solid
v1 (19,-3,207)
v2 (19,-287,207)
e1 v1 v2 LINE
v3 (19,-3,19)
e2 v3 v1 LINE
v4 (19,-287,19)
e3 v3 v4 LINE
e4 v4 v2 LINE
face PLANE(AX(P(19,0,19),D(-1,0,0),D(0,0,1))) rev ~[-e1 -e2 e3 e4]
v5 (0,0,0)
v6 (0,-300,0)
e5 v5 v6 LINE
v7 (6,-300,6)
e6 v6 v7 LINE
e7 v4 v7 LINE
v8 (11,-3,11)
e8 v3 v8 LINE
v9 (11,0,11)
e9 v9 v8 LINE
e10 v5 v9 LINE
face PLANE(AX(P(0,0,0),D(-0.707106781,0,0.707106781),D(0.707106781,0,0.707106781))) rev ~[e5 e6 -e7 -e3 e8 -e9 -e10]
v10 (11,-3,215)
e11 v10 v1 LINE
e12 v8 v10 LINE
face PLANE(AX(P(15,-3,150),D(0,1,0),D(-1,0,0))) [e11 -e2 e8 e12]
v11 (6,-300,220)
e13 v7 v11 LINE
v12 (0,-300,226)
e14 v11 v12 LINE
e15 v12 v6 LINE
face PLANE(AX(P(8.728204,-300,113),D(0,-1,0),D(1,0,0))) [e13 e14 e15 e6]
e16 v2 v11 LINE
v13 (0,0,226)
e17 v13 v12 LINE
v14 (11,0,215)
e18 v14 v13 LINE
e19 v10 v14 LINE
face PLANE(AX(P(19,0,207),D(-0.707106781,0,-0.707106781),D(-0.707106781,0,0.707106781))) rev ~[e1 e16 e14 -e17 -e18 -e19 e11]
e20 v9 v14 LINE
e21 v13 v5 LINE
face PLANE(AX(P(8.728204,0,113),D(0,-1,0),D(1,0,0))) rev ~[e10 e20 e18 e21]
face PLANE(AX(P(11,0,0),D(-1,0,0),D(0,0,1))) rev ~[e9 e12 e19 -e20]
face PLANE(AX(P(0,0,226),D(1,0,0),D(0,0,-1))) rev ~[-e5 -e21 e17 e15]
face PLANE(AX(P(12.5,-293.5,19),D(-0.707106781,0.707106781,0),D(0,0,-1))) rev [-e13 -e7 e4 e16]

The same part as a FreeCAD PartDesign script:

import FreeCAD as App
import Part
import Sketcher
from FreeCAD import Vector


def edges_at(feature, points):
    """Names of the edges that pass closest to the given points."""
    edges = feature.Shape.Edges
    near = lambda p: min(range(len(edges)), key=lambda i: edges[i].distToShape(Part.Vertex(*p))[0])
    return sorted({f"Edge{near(p) + 1}" for p in points})

doc = App.newDocument("Part")
body = doc.addObject("PartDesign::Body", "Body")

# Sketch on XZ plane
sketch1 = body.newObject("Sketcher::SketchObject", "Sketch")
sketch1.AttachmentSupport = (doc.getObject("XZ_Plane"), [""])
sketch1.MapMode = "FlatFace"
sketch1.addGeometry([
    Part.LineSegment(Vector(0, 226, 0), Vector(0, 0, 0)),
    Part.LineSegment(Vector(0, 0, 0), Vector(19, 19, 0)),
    Part.LineSegment(Vector(19, 19, 0), Vector(19, 207, 0)),
    Part.LineSegment(Vector(19, 207, 0), Vector(0, 226, 0)),
], False)
sketch1.addConstraint([
    Sketcher.Constraint("Coincident", 0, 2, 1, 1),
    Sketcher.Constraint("Coincident", 1, 2, 2, 1),
    Sketcher.Constraint("Coincident", 2, 2, 3, 1),
    Sketcher.Constraint("Coincident", 3, 2, 0, 1),
    Sketcher.Constraint("Vertical", 0),
    Sketcher.Constraint("Vertical", 2),
    Sketcher.Constraint("Coincident", 0, 2, -1, 1),
    Sketcher.Constraint("Perpendicular", 1, 3),
    Sketcher.Constraint("Equal", 1, 3),
    Sketcher.Constraint("DistanceY", 0, 2, 0, 1, 226.0),
    Sketcher.Constraint("DistanceY", 2, 1, 2, 2, 188.0),
])
pad1 = body.newObject("PartDesign::Pad", "Pad")
pad1.Profile = sketch1
pad1.Length = 300
doc.recompute()

chamfer = body.newObject("PartDesign::Chamfer", "Chamfer")
chamfer.Base = (pad1, edges_at(pad1, [(19, -300, 113)]))
chamfer.Size = 13

# Sketch on XZ plane
sketch2 = body.newObject("Sketcher::SketchObject", "Sketch001")
sketch2.AttachmentSupport = (doc.getObject("XZ_Plane"), [""])
sketch2.MapMode = "FlatFace"
sketch2.addGeometry([
    Part.LineSegment(Vector(19, 300, 0), Vector(19, 0, 0)),
    Part.LineSegment(Vector(19, 0, 0), Vector(11, 0, 0)),
    Part.LineSegment(Vector(11, 0, 0), Vector(11, 300, 0)),
    Part.LineSegment(Vector(11, 300, 0), Vector(19, 300, 0)),
], False)
sketch2.addConstraint([
    Sketcher.Constraint("Coincident", 0, 2, 1, 1),
    Sketcher.Constraint("Coincident", 1, 2, 2, 1),
    Sketcher.Constraint("Coincident", 2, 2, 3, 1),
    Sketcher.Constraint("Coincident", 3, 2, 0, 1),
    Sketcher.Constraint("Vertical", 0),
    Sketcher.Constraint("Horizontal", 1),
    Sketcher.Constraint("Vertical", 2),
    Sketcher.Constraint("Horizontal", 3),
    Sketcher.Constraint("PointOnObject", 0, 2, -1),
    Sketcher.Constraint("DistanceX", 1, 2, 1, 1, 8.0),
    Sketcher.Constraint("DistanceY", 0, 2, 0, 1, 300.0),
    Sketcher.Constraint("DistanceX", -1, 1, 0, 2, 19.0),
])
pocket1 = body.newObject("PartDesign::Pocket", "Pocket")
pocket1.Profile = sketch2
pocket1.Length = 3
pocket1.Reversed = True

doc.recompute()
